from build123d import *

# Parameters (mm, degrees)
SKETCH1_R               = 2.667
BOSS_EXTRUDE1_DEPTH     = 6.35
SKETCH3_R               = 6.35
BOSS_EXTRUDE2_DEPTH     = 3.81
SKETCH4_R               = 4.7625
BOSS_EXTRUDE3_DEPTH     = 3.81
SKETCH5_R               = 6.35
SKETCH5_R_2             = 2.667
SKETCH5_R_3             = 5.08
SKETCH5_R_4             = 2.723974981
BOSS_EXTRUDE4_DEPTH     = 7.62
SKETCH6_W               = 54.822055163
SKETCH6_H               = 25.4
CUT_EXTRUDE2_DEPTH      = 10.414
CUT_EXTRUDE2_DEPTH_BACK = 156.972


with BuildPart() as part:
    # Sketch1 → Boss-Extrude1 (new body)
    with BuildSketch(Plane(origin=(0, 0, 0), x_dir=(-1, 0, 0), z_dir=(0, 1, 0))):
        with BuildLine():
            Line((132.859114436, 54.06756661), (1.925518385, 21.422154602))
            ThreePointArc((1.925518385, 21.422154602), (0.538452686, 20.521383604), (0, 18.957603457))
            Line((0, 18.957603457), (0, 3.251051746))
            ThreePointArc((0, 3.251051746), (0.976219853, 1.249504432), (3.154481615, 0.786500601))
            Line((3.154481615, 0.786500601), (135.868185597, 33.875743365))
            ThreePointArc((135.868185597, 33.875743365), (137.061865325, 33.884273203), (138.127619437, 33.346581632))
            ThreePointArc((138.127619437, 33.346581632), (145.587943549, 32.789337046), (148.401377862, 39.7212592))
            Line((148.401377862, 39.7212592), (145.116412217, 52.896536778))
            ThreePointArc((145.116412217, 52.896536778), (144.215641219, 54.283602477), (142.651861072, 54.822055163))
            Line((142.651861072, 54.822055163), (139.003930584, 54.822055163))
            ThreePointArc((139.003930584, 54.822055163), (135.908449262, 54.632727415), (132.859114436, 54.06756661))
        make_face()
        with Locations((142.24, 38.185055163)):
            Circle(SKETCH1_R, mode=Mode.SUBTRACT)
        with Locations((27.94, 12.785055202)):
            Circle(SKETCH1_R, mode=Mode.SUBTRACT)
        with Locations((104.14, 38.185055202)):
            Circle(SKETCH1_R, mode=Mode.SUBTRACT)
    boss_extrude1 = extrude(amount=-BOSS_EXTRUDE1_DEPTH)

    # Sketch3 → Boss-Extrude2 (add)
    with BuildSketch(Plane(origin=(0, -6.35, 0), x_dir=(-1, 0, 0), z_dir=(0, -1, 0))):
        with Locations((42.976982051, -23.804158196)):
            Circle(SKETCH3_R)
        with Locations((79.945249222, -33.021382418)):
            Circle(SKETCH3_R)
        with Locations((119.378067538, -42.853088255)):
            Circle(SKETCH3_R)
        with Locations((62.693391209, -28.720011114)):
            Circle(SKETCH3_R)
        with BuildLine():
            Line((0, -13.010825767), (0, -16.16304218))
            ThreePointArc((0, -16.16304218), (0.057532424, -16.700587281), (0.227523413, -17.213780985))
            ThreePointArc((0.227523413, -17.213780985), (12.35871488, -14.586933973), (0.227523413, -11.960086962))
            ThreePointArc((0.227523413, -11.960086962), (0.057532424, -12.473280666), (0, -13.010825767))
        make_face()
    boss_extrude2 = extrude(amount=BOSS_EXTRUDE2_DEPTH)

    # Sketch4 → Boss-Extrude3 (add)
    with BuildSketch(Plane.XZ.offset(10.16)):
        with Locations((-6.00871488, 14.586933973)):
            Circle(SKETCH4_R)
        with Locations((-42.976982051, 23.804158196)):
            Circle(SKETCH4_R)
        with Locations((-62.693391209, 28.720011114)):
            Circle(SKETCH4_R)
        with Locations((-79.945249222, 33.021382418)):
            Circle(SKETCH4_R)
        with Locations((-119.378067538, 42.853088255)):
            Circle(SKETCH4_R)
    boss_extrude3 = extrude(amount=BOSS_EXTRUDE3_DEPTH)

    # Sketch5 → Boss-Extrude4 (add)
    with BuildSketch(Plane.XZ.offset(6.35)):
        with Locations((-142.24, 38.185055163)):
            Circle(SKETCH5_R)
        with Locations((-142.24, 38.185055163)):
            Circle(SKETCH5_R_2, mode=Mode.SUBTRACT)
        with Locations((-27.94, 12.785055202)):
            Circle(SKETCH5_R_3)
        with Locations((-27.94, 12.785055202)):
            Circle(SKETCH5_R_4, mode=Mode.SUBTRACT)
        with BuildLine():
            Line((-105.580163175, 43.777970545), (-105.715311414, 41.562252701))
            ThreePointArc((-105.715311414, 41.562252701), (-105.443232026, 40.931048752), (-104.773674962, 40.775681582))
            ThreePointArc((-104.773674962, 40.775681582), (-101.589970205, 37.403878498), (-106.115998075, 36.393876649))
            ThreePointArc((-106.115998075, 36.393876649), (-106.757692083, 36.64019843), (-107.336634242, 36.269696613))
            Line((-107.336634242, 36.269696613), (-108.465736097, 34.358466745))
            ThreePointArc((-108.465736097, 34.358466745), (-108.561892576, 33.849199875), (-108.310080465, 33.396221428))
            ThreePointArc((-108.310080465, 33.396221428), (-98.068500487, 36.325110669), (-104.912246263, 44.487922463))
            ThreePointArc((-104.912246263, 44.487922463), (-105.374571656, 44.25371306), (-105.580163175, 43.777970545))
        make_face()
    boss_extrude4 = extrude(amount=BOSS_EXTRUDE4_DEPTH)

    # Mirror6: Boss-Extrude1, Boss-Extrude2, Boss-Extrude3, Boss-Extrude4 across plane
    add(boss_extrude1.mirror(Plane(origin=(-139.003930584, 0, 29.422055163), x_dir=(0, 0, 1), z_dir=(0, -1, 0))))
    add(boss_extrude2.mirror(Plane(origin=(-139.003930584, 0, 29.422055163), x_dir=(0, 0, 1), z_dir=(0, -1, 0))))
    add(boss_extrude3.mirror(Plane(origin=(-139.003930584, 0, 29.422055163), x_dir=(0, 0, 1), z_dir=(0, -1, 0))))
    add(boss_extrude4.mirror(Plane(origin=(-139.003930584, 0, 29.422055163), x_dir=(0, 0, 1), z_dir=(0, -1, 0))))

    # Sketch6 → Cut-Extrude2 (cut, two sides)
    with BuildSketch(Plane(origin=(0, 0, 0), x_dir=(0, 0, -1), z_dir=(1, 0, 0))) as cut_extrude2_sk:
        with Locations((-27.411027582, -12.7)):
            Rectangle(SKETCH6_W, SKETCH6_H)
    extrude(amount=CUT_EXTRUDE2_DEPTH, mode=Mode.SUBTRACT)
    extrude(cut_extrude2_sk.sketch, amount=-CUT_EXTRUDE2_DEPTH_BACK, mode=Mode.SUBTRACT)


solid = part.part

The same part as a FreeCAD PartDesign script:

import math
import FreeCAD as App
import Part
import Sketcher
Q = App.Units.Quantity

doc = App.newDocument("Part")
params = doc.addObject("Spreadsheet::Sheet", "Params")
for row, (alias, value) in enumerate([
    ("sketch1_radius", "1 in"),
    ("sketch1_radius2", "0.1 in"),
    ("sketch1_diameter", "0.21 in"),
    ("sketch1_radius3", "0.25 in"),
    ("pad1_length", "0.25 in"),
    ("sketch2_diameter", "0.5 in"),
    ("sketch2_radius", "0.1 in"),
    ("pad2_length", "0.15 in"),
    ("sketch3_diameter", "0.375 in"),
    ("pad3_length", "0.15 in"),
    ("sketch4_diameter", "0.5 in"),
    ("sketch4_diameter2", "0.4 in"),
    ("sketch4_diameter3", "0.21 in"),
    ("sketch4_radius", "0.03 in"),
    ("pad4_length", "0.3 in"),
    ("sketch5_width", "1 in"),
], start=1):
    params.set(f"A{row}", alias)
    params.set(f"B{row}", "=" + value)
    params.setAlias(f"B{row}", alias)

body = doc.addObject("PartDesign::Body", "Body")

# Sketch on XZ plane
sketch1 = body.newObject("Sketcher::SketchObject", "Sketch")
sketch1.AttachmentSupport = (doc.getObject("XZ_Plane"), [""])
sketch1.MapMode = "FlatFace"
sketch1.addGeometry(Part.LineSegment(App.Vector(-132.859114, 54.067567, 0), App.Vector(-1.925518, 21.422155, 0)), False)
sketch1.addGeometry(Part.ArcOfCircle(Part.Circle(App.Vector(-2.54, 18.957603, 0), App.Vector(0, 0, 1), 2.54), math.radians(0), math.radians(76)), False)
sketch1.addGeometry(Part.LineSegment(App.Vector(0, 18.957603, 0), App.Vector(0, 3.251052, 0)), False)
sketch1.addGeometry(Part.ArcOfCircle(Part.Circle(App.Vector(-2.54, 3.251052, 0), App.Vector(0, 0, 1), 2.54), math.radians(-104), math.radians(0)), False)
sketch1.addGeometry(Part.LineSegment(App.Vector(-3.154482, 0.786501, 0), App.Vector(-135.868186, 33.875743, 0)), False)
sketch1.addGeometry(Part.ArcOfCircle(Part.Circle(App.Vector(-136.482667, 31.411192, 0), App.Vector(0, 0, 1), 2.54), math.radians(76), math.radians(130.362323)), False)
sketch1.addGeometry(Part.ArcOfCircle(Part.Circle(App.Vector(-142.24, 38.185055, 0), App.Vector(0, 0, 1), 6.35), math.radians(166), math.radians(310.362323)), False)
sketch1.addGeometry(Part.LineSegment(App.Vector(-148.401378, 39.721259, 0), App.Vector(-145.116412, 52.896537, 0)), False)
sketch1.addGeometry(Part.ArcOfCircle(Part.Circle(App.Vector(-142.651861, 52.282055, 0), App.Vector(0, 0, 1), 2.54), math.radians(90), math.radians(166)), False)
sketch1.addGeometry(Part.LineSegment(App.Vector(-142.651861, 54.822055, 0), App.Vector(-139.003931, 54.822055, 0)), False)
sketch1.addGeometry(Part.ArcOfCircle(Part.Circle(App.Vector(-139.003931, 29.422055, 0), App.Vector(0, 0, 1), 25.4), math.radians(76), math.radians(90)), False)
sketch1.addGeometry(Part.Circle(App.Vector(-27.94, 12.785055, 0), App.Vector(0, 0, 1), 2.667), False)
sketch1.addGeometry(Part.Circle(App.Vector(-104.14, 38.185055, 0), App.Vector(0, 0, 1), 2.667), False)
sketch1.addGeometry(Part.Circle(App.Vector(-142.24, 38.185055, 0), App.Vector(0, 0, 1), 2.667), False)
sketch1.addConstraint(Sketcher.Constraint("Tangent", 0, 2, 1, 2))
sketch1.addConstraint(Sketcher.Constraint("Tangent", 1, 1, 2, 1))
sketch1.addConstraint(Sketcher.Constraint("Tangent", 2, 2, 3, 2))
sketch1.addConstraint(Sketcher.Constraint("Tangent", 3, 1, 4, 1))
sketch1.addConstraint(Sketcher.Constraint("Tangent", 4, 2, 5, 1))
sketch1.addConstraint(Sketcher.Constraint("Tangent", 5, 2, 6, 2))
sketch1.addConstraint(Sketcher.Constraint("Tangent", 6, 1, 7, 1))
sketch1.addConstraint(Sketcher.Constraint("Tangent", 7, 2, 8, 2))
sketch1.addConstraint(Sketcher.Constraint("Tangent", 8, 1, 9, 1))
sketch1.addConstraint(Sketcher.Constraint("Tangent", 9, 2, 10, 2))
sketch1.addConstraint(Sketcher.Constraint("Tangent", 10, 1, 0, 1))
sketch1.addConstraint(Sketcher.Constraint("Vertical", 2))
sketch1.addConstraint(Sketcher.Constraint("Horizontal", 9))
sketch1.addConstraint(Sketcher.Constraint("Coincident", 13, 3, 6, 3))
sketch1.addConstraint(Sketcher.Constraint("Equal", 1, 3))
sketch1.addConstraint(Sketcher.Constraint("Equal", 3, 5))
sketch1.addConstraint(Sketcher.Constraint("Equal", 5, 8))
sketch1.addConstraint(Sketcher.Constraint("Equal", 11, 12))
sketch1.addConstraint(Sketcher.Constraint("Equal", 12, 13))
sketch1.addConstraint(Sketcher.Constraint("PointOnObject", 1, 1, -2))
sketch1.addConstraint(Sketcher.Constraint("Parallel", 0, 4))
sketch1.addConstraint(Sketcher.Constraint("Perpendicular", 4, 7))
sketch1.addConstraint(Sketcher.Constraint("Horizontal", 6, 3, 12, 3))
sketch1.addConstraint(Sketcher.Constraint("Radius", 10, Q("1 in")))
sketch1.addConstraint(Sketcher.Constraint("Radius", 1, Q("0.1 in")))
sketch1.addConstraint(Sketcher.Constraint("Diameter", 11, Q("0.21 in")))
sketch1.addConstraint(Sketcher.Constraint("Radius", 6, Q("0.25 in")))
sketch1.addConstraint(Sketcher.Constraint("Angle", 0, Q("-14 deg")))
sketch1.addConstraint(Sketcher.Constraint("DistanceX", 11, 3, 1, 3, Q("1 in")))
sketch1.addConstraint(Sketcher.Constraint("DistanceY", 11, 3, 6, 3, Q("1 in")))
sketch1.addConstraint(Sketcher.Constraint("DistanceX", 12, 3, 11, 3, Q("3 in")))
sketch1.addConstraint(Sketcher.Constraint("DistanceX", 6, 3, -1, 1, Q("5.6 in")))
sketch1.addConstraint(Sketcher.Constraint("DistanceY", 6, 3, 8, 3, Q("0.555 in")))
sketch1.addConstraint(Sketcher.Constraint("DistanceX", 9, 1, 9, 2, Q("3.64793 mm")))
sketch1.addConstraint(Sketcher.Constraint("DistanceY", 2, 2, 2, 1, Q("15.706552 mm")))
sketch1.addConstraint(Sketcher.Constraint("DistanceY", -1, 1, 3, 1, Q("0.786501 mm")))
sketch1.setExpression("Constraints[23]", "Params.sketch1_radius")
sketch1.setExpression("Constraints[24]", "Params.sketch1_radius2")
sketch1.setExpression("Constraints[25]", "Params.sketch1_diameter")
sketch1.setExpression("Constraints[26]", "Params.sketch1_radius3")
pad1 = body.newObject("PartDesign::Pad", "Pad")
pad1.Profile = sketch1
pad1.setExpression("Length", "Params.pad1_length")

# Sketch on XZ plane
sketch2 = body.newObject("Sketcher::SketchObject", "Sketch001")
sketch2.AttachmentSupport = (doc.getObject("XZ_Plane"), [""])
sketch2.MapMode = "FlatFace"
sketch2.AttachmentOffset = App.Placement(App.Vector(0, 0, 0.25 * 25.4), App.Rotation())
sketch2.addGeometry(Part.Circle(App.Vector(-42.976982, 23.804158, 0), App.Vector(0, 0, 1), 6.35), False)
sketch2.addGeometry(Part.Circle(App.Vector(-79.945249, 33.021382, 0), App.Vector(0, 0, 1), 6.35), False)
sketch2.addGeometry(Part.Circle(App.Vector(-119.378068, 42.853088, 0), App.Vector(0, 0, 1), 6.35), False)
sketch2.addGeometry(Part.Circle(App.Vector(-62.693391, 28.720011, 0), App.Vector(0, 0, 1), 6.35), False)
sketch2.addGeometry(Part.LineSegment(App.Vector(0, 13.010826, 0), App.Vector(0, 16.163042, 0)), False)
sketch2.addGeometry(Part.ArcOfCircle(Part.Circle(App.Vector(-2.54, 16.163042, 0), App.Vector(0, 0, 1), 2.54), math.radians(0), math.radians(24.436009)), False)
sketch2.addGeometry(Part.ArcOfCircle(Part.Circle(App.Vector(-6.008715, 14.586934, 0), App.Vector(0, 0, 1), 6.35), math.radians(24.436009), math.radians(335.563991)), False)
sketch2.addGeometry(Part.ArcOfCircle(Part.Circle(App.Vector(-2.54, 13.010826, 0), App.Vector(0, 0, 1), 2.54), math.radians(-24.436009), math.radians(0)), False)
sketch2.addConstraint(Sketcher.Constraint("Tangent", 4, 2, 5, 1))
sketch2.addConstraint(Sketcher.Constraint("Tangent", 5, 2, 6, 1))
sketch2.addConstraint(Sketcher.Constraint("Tangent", 6, 2, 7, 1))
sketch2.addConstraint(Sketcher.Constraint("Tangent", 7, 2, 4, 1))
sketch2.addConstraint(Sketcher.Constraint("Vertical", 4))
sketch2.addConstraint(Sketcher.Constraint("Equal", 0, 1))
sketch2.addConstraint(Sketcher.Constraint("Equal", 1, 2))
sketch2.addConstraint(Sketcher.Constraint("Equal", 2, 3))
sketch2.addConstraint(Sketcher.Constraint("Equal", 3, 6))
sketch2.addConstraint(Sketcher.Constraint("Equal", 5, 7))
sketch2.addConstraint(Sketcher.Constraint("PointOnObject", 4, 2, -2))
sketch2.addConstraint(Sketcher.Constraint("Diameter", 0, Q("0.5 in")))
sketch2.addConstraint(Sketcher.Constraint("Radius", 5, Q("0.1 in")))
sketch2.addConstraint(Sketcher.Constraint("DistanceY", 4, 1, 4, 2, Q("3.152216 mm")))
sketch2.addConstraint(Sketcher.Constraint("DistanceY", -1, 1, 0, 3, Q("23.804158 mm")))
sketch2.addConstraint(Sketcher.Constraint("DistanceX", 1, 3, -1, 1, Q("79.945249 mm")))
sketch2.addConstraint(Sketcher.Constraint("DistanceY", -1, 1, 2, 3, Q("42.853088 mm")))
sketch2.addConstraint(Sketcher.Constraint("DistanceX", 3, 3, -1, 1, Q("62.693391 mm")))
sketch2.addConstraint(Sketcher.Constraint("DistanceY", -1, 1, 3, 3, Q("28.720011 mm")))
sketch2.addConstraint(Sketcher.Constraint("DistanceY", -1, 1, 5, 2, Q("17.213781 mm")))
sketch2.addConstraint(Sketcher.Constraint("DistanceX", 2, 3, 1, 3, Q("39.432818 mm")))
sketch2.addConstraint(Sketcher.Constraint("DistanceY", 3, 3, 1, 3, Q("4.301371 mm")))
sketch2.addConstraint(Sketcher.Constraint("DistanceX", 3, 3, 0, 3, Q("19.716409 mm")))
sketch2.setExpression("Constraints[11]", "Params.sketch2_diameter")
sketch2.setExpression("Constraints[12]", "Params.sketch2_radius")
pad2 = body.newObject("PartDesign::Pad", "Pad001")
pad2.Profile = sketch2
pad2.setExpression("Length", "Params.pad2_length")

# Sketch on XZ plane
sketch3 = body.newObject("Sketcher::SketchObject", "Sketch002")
sketch3.AttachmentSupport = (doc.getObject("XZ_Plane"), [""])
sketch3.MapMode = "FlatFace"
sketch3.AttachmentOffset = App.Placement(App.Vector(0, 0, 0.4 * 25.4), App.Rotation())
sketch3.addGeometry(Part.Circle(App.Vector(-6.008715, 14.586934, 0), App.Vector(0, 0, 1), 4.7625), False)
sketch3.addGeometry(Part.Circle(App.Vector(-42.976982, 23.804158, 0), App.Vector(0, 0, 1), 4.7625), False)
sketch3.addGeometry(Part.Circle(App.Vector(-62.693391, 28.720011, 0), App.Vector(0, 0, 1), 4.7625), False)
sketch3.addGeometry(Part.Circle(App.Vector(-79.945249, 33.021382, 0), App.Vector(0, 0, 1), 4.7625), False)
sketch3.addGeometry(Part.Circle(App.Vector(-119.378068, 42.853088, 0), App.Vector(0, 0, 1), 4.7625), False)
sketch3.addConstraint(Sketcher.Constraint("Equal", 0, 1))
sketch3.addConstraint(Sketcher.Constraint("Equal", 1, 2))
sketch3.addConstraint(Sketcher.Constraint("Equal", 2, 3))
sketch3.addConstraint(Sketcher.Constraint("Equal", 3, 4))
sketch3.addConstraint(Sketcher.Constraint("Diameter", 0, Q("0.375 in")))
sketch3.addConstraint(Sketcher.Constraint("DistanceY", -1, 1, 1, 3, Q("23.804158 mm")))
sketch3.addConstraint(Sketcher.Constraint("DistanceX", 2, 3, -1, 1, Q("62.693391 mm")))
sketch3.addConstraint(Sketcher.Constraint("DistanceY", -1, 1, 2, 3, Q("28.720011 mm")))
sketch3.addConstraint(Sketcher.Constraint("DistanceX", 3, 3, -1, 1, Q("79.945249 mm")))
sketch3.addConstraint(Sketcher.Constraint("DistanceY", -1, 1, 4, 3, Q("42.853088 mm")))
sketch3.addConstraint(Sketcher.Constraint("DistanceX", 2, 3, 1, 3, Q("19.716409 mm")))
sketch3.addConstraint(Sketcher.Constraint("DistanceY", 2, 3, 3, 3, Q("4.301371 mm")))
sketch3.addConstraint(Sketcher.Constraint("DistanceY", 0, 3, 3, 3, Q("18.434448 mm")))
sketch3.addConstraint(Sketcher.Constraint("DistanceX", 4, 3, 3, 3, Q("39.432818 mm")))
sketch3.addConstraint(Sketcher.Constraint("DistanceX", 0, 3, -1, 1, Q("6.008715 mm")))
sketch3.setExpression("Constraints[4]", "Params.sketch3_diameter")
pad3 = body.newObject("PartDesign::Pad", "Pad002")
pad3.Profile = sketch3
pad3.setExpression("Length", "Params.pad3_length")

# Sketch on XZ plane
sketch4 = body.newObject("Sketcher::SketchObject", "Sketch003")
sketch4.AttachmentSupport = (doc.getObject("XZ_Plane"), [""])
sketch4.MapMode = "FlatFace"
sketch4.AttachmentOffset = App.Placement(App.Vector(0, 0, 0.25 * 25.4), App.Rotation())
sketch4.addGeometry(Part.Circle(App.Vector(-142.24, 38.185055, 0), App.Vector(0, 0, 1), 6.35), False)
sketch4.addGeometry(Part.Circle(App.Vector(-142.24, 38.185055, 0), App.Vector(0, 0, 1), 2.667), False)
sketch4.addGeometry(Part.Circle(App.Vector(-27.94, 12.785055, 0), App.Vector(0, 0, 1), 5.08), False)
sketch4.addGeometry(Part.Circle(App.Vector(-27.94, 12.785055, 0), App.Vector(0, 0, 1), 2.723975), False)
sketch4.addGeometry(Part.LineSegment(App.Vector(-105.580163, 43.777971, 0), App.Vector(-105.715311, 41.562253, 0)), False)
sketch4.addGeometry(Part.ArcOfCircle(Part.Circle(App.Vector(-104.954725, 41.515861, 0), App.Vector(0, 0, 1), 0.762), math.radians(176.509555), math.radians(283.74484)), False)
sketch4.addGeometry(Part.ArcOfCircle(Part.Circle(App.Vector(-104.14, 38.185055, 0), App.Vector(0, 0, 1), 2.667), math.radians(-137.808707), math.radians(103.74484)), False)
sketch4.addGeometry(Part.ArcOfCircle(Part.Circle(App.Vector(-106.680569, 35.882111, 0), App.Vector(0, 0, 1), 0.762), math.radians(42.191293), math.radians(149.426578)), False)
sketch4.addGeometry(Part.LineSegment(App.Vector(-107.336634, 36.269697, 0), App.Vector(-108.465736, 34.358467, 0)), False)
sketch4.addGeometry(Part.ArcOfCircle(Part.Circle(App.Vector(-107.809671, 33.970881, 0), App.Vector(0, 0, 1), 0.762), math.radians(149.426578), math.radians(228.950897)), False)
sketch4.addGeometry(Part.ArcOfCircle(Part.Circle(App.Vector(-104.14, 38.185055, 0), App.Vector(0, 0, 1), 6.35), math.radians(-131.049103), math.radians(96.985236)), False)
sketch4.addGeometry(Part.ArcOfCircle(Part.Circle(App.Vector(-104.819577, 43.731578, 0), App.Vector(0, 0, 1), 0.762), math.radians(96.985236), math.radians(176.509555)), False)
sketch4.addConstraint(Sketcher.Constraint("Tangent", 4, 2, 5, 1))
sketch4.addConstraint(Sketcher.Constraint("Tangent", 5, 2, 6, 2))
sketch4.addConstraint(Sketcher.Constraint("Tangent", 6, 1, 7, 1))
sketch4.addConstraint(Sketcher.Constraint("Tangent", 7, 2, 8, 1))
sketch4.addConstraint(Sketcher.Constraint("Tangent", 8, 2, 9, 1))
sketch4.addConstraint(Sketcher.Constraint("Tangent", 9, 2, 10, 1))
sketch4.addConstraint(Sketcher.Constraint("Tangent", 10, 2, 11, 1))
sketch4.addConstraint(Sketcher.Constraint("Tangent", 11, 2, 4, 1))
sketch4.addConstraint(Sketcher.Constraint("Coincident", 1, 3, 0, 3))
sketch4.addConstraint(Sketcher.Constraint("Coincident", 3, 3, 2, 3))
sketch4.addConstraint(Sketcher.Constraint("Coincident", 10, 3, 6, 3))
sketch4.addConstraint(Sketcher.Constraint("Equal", 1, 6))
sketch4.addConstraint(Sketcher.Constraint("Equal", 5, 7))
sketch4.addConstraint(Sketcher.Constraint("Equal", 7, 9))
sketch4.addConstraint(Sketcher.Constraint("Equal", 0, 10))
sketch4.addConstraint(Sketcher.Constraint("Equal", 9, 11))
sketch4.addConstraint(Sketcher.Constraint("Horizontal", 1, 3, 6, 3))
sketch4.addConstraint(Sketcher.Constraint("Equal", 4, 8))
sketch4.addConstraint(Sketcher.Constraint("Diameter", 0, Q("0.5 in")))
sketch4.addConstraint(Sketcher.Constraint("Diameter", 2, Q("0.4 in")))
sketch4.addConstraint(Sketcher.Constraint("Diameter", 1, Q("0.21 in")))
sketch4.addConstraint(Sketcher.Constraint("Radius", 5, Q("0.03 in")))
sketch4.addConstraint(Sketcher.Constraint("DistanceY", 2, 3, 0, 3, Q("1 in")))
sketch4.addConstraint(Sketcher.Constraint("DistanceX", 6, 3, 2, 3, Q("3 in")))
sketch4.addConstraint(Sketcher.Constraint("DistanceX", 0, 3, -1, 1, Q("5.6 in")))
sketch4.addConstraint(Sketcher.Constraint("DistanceX", 2, 3, -1, 1, Q("1.1 in")))
sketch4.addConstraint(Sketcher.Constraint("Diameter", 3, Q("5.44795 mm")))
sketch4.addConstraint(Sketcher.Constraint("DistanceX", 6, 1, -1, 1, Q("106.115998 mm")))
sketch4.addConstraint(Sketcher.Constraint("DistanceX", 9, 3, 7, 3, Q("1.129102 mm")))
sketch4.addConstraint(Sketcher.Constraint("DistanceX", 11, 3, 5, 2, Q("0.045902 mm")))
sketch4.addConstraint(Sketcher.Constraint("DistanceY", -1, 1, 5, 3, Q("41.515861 mm")))
sketch4.setExpression("Constraints[18]", "Params.sketch4_diameter")
sketch4.setExpression("Constraints[19]", "Params.sketch4_diameter2")
sketch4.setExpression("Constraints[20]", "Params.sketch4_diameter3")
sketch4.setExpression("Constraints[21]", "Params.sketch4_radius")
pad4 = body.newObject("PartDesign::Pad", "Pad003")
pad4.Profile = sketch4
pad4.setExpression("Length", "Params.pad4_length")
doc.recompute()

mirrored = body.newObject("PartDesign::Mirrored", "Mirrored")
mirrored.Originals = [pad1, pad2, pad3, pad4]
mirrored.MirrorPlane = (doc.getObject("XZ_Plane"), [""])
body.Tip = mirrored

# Sketch on YZ plane
sketch5 = body.newObject("Sketcher::SketchObject", "Sketch004")
sketch5.AttachmentSupport = (doc.getObject("YZ_Plane"), [""])
sketch5.MapMode = "FlatFace"
sketch5.addGeometry(Part.LineSegment(App.Vector(0, 54.822055, 0), App.Vector(-25.4, 54.822055, 0)), False)
sketch5.addGeometry(Part.LineSegment(App.Vector(-25.4, 54.822055, 0), App.Vector(-25.4, 0, 0)), False)
sketch5.addGeometry(Part.LineSegment(App.Vector(-25.4, 0, 0), App.Vector(0, 0, 0)), False)
sketch5.addGeometry(Part.LineSegment(App.Vector(0, 0, 0), App.Vector(0, 54.822055, 0)), False)
sketch5.addConstraint(Sketcher.Constraint("Coincident", 0, 2, 1, 1))
sketch5.addConstraint(Sketcher.Constraint("Coincident", 1, 2, 2, 1))
sketch5.addConstraint(Sketcher.Constraint("Coincident", 2, 2, 3, 1))
sketch5.addConstraint(Sketcher.Constraint("Coincident", 3, 2, 0, 1))
sketch5.addConstraint(Sketcher.Constraint("Horizontal", 0))
sketch5.addConstraint(Sketcher.Constraint("Vertical", 1))
sketch5.addConstraint(Sketcher.Constraint("Horizontal", 2))
sketch5.addConstraint(Sketcher.Constraint("Vertical", 3))
sketch5.addConstraint(Sketcher.Constraint("Coincident", 2, 2, -1, 1))
sketch5.addConstraint(Sketcher.Constraint("DistanceX", 0, 2, 0, 1, Q("1 in")))
sketch5.addConstraint(Sketcher.Constraint("DistanceY", 1, 2, 1, 1, Q("54.822055 mm")))
sketch5.setExpression("Constraints[9]", "Params.sketch5_width")
pocket1 = body.newObject("PartDesign::Pocket", "Pocket")
pocket1.Profile = sketch5
pocket1.Type = "ThroughAll"
pocket1.Midplane = True

doc.recompute()
